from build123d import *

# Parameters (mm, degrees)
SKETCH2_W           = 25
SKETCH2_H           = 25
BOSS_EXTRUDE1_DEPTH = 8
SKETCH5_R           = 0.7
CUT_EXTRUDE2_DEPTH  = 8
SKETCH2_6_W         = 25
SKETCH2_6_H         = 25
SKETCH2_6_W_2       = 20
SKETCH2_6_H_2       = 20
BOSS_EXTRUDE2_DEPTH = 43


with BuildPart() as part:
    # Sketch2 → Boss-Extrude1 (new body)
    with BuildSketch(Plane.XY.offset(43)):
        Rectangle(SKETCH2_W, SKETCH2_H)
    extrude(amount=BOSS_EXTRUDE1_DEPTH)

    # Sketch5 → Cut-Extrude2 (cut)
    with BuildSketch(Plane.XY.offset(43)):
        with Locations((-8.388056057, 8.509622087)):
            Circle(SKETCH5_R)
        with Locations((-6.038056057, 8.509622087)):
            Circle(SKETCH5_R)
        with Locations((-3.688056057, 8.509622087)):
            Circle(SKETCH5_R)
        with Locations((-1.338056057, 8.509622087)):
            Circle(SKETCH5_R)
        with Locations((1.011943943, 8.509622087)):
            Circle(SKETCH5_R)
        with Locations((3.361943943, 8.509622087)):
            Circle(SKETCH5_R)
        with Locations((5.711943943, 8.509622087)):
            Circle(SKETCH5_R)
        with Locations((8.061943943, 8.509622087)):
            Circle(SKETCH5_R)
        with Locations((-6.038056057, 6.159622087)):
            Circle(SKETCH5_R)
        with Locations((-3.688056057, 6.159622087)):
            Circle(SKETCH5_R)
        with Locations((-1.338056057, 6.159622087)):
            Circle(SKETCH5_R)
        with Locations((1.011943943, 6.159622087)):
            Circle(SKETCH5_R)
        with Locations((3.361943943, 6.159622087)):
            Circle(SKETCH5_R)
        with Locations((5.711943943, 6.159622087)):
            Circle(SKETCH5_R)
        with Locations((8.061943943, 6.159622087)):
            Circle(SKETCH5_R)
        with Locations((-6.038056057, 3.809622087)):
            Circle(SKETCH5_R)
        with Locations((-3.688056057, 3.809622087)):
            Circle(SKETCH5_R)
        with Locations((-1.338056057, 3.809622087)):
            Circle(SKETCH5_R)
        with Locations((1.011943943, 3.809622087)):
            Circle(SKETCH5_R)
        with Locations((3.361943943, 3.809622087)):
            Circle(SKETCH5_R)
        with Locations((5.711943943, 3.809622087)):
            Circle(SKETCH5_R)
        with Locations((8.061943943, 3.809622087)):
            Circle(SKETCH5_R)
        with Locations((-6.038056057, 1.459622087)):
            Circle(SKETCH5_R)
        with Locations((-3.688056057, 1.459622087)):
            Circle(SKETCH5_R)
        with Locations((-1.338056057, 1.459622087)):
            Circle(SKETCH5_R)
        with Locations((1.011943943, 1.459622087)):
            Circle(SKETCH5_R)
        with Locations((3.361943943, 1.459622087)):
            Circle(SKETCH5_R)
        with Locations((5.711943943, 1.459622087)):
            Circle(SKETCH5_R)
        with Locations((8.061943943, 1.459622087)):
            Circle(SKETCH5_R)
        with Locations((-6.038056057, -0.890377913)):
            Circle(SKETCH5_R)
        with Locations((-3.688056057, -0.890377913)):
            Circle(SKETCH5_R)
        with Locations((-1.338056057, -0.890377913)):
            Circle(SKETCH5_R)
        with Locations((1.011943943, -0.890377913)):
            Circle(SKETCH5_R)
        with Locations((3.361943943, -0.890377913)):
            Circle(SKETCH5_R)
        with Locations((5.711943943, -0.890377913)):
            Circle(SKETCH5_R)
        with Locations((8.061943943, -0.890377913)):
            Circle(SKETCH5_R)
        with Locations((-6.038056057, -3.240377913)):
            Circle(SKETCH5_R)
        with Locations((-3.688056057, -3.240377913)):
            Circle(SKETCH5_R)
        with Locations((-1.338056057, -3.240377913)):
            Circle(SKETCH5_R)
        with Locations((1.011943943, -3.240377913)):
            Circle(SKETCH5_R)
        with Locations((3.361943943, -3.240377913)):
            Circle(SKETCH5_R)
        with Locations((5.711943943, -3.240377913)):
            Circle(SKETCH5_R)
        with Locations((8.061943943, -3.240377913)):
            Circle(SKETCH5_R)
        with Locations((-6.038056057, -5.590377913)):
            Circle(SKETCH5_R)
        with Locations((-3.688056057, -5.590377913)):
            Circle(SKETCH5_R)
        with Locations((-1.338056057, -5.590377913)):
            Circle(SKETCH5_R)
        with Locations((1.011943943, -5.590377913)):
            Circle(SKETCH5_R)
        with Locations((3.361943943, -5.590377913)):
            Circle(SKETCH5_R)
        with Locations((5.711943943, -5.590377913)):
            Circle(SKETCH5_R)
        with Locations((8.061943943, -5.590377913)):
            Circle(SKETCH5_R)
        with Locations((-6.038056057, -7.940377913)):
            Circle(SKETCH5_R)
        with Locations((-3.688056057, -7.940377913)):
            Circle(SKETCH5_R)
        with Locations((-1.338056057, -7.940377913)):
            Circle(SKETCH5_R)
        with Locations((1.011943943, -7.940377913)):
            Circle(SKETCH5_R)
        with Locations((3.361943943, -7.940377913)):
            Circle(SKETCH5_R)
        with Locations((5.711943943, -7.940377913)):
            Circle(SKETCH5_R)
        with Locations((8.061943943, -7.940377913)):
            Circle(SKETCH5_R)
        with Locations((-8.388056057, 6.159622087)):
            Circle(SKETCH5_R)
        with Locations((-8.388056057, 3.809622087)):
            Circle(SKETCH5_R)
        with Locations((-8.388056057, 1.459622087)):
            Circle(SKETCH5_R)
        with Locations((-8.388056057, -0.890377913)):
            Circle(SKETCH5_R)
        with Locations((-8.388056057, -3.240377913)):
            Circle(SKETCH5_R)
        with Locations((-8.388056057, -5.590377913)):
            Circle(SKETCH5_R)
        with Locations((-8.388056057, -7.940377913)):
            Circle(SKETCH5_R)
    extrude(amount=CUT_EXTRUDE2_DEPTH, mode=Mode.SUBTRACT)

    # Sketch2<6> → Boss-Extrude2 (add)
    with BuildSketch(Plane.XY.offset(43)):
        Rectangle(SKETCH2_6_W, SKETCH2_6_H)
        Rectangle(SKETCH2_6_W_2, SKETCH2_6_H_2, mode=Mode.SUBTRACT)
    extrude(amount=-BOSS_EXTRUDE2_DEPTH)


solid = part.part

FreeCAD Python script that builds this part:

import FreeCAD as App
import Part
import Sketcher
from FreeCAD import Vector


def add_polygon(sketch, points):
    """Adds a closed chain of lines whose ends are joined by coincident constraints."""
    first, n = sketch.GeometryCount, len(points)
    for a, b in zip(points, points[1:] + points[:1]):
        sketch.addGeometry(Part.LineSegment(App.Vector(*a, 0), App.Vector(*b, 0)), False)
    for i in range(n):
        sketch.addConstraint(Sketcher.Constraint("Coincident", first + i, 2, first + (i + 1) % n, 1))

doc = App.newDocument("Part")
body = doc.addObject("PartDesign::Body", "Body")

# Sketch on XY plane
sketch1 = body.newObject("Sketcher::SketchObject", "Sketch")
sketch1.AttachmentSupport = (doc.getObject("XY_Plane"), [""])
sketch1.MapMode = "FlatFace"
sketch1.AttachmentOffset = App.Placement(Vector(0, 0, 43), App.Rotation())
add_polygon(sketch1, [(-12, 12), (-12, -12), (12, -12), (12, 12)])  # lines 0-3
sketch1.addConstraint([
    Sketcher.Constraint("Vertical", 0),
    Sketcher.Constraint("Horizontal", 1),
    Sketcher.Constraint("Vertical", 2),
    Sketcher.Constraint("Horizontal", 3),
    Sketcher.Constraint("Symmetric", 0, 2, 2, 2, -1, 1),
    Sketcher.Constraint("Equal", 3, 0),
    Sketcher.Constraint("DistanceX", 1, 1, 1, 2, 25.0),
])
pad1 = body.newObject("PartDesign::Pad", "Pad")
pad1.Profile = sketch1
pad1.Length = 8

# Sketch on XY plane
sketch2 = body.newObject("Sketcher::SketchObject", "Sketch001")
sketch2.AttachmentSupport = (doc.getObject("XY_Plane"), [""])
sketch2.MapMode = "FlatFace"
sketch2.AttachmentOffset = App.Placement(Vector(0, 0, 43), App.Rotation())
sketch2.addGeometry([
    Part.Circle(Vector(-8.4, 8.5, 0), Vector(0, 0, 1), 0.7),  # 0
    Part.Circle(Vector(-6, 8.5, 0), Vector(0, 0, 1), 0.7),  # 1
    Part.Circle(Vector(-3.7, 8.5, 0), Vector(0, 0, 1), 0.7),  # 2
    Part.Circle(Vector(-1.3, 8.5, 0), Vector(0, 0, 1), 0.7),  # 3
    Part.Circle(Vector(1, 8.5, 0), Vector(0, 0, 1), 0.7),  # 4
    Part.Circle(Vector(3.4, 8.5, 0), Vector(0, 0, 1), 0.7),  # 5
    Part.Circle(Vector(5.7, 8.5, 0), Vector(0, 0, 1), 0.7),  # 6
    Part.Circle(Vector(8.1, 8.5, 0), Vector(0, 0, 1), 0.7),  # 7
    Part.Circle(Vector(-6, 6.2, 0), Vector(0, 0, 1), 0.7),  # 8
    Part.Circle(Vector(-3.7, 6.2, 0), Vector(0, 0, 1), 0.7),  # 9
    Part.Circle(Vector(-1.3, 6.2, 0), Vector(0, 0, 1), 0.7),  # 10
    Part.Circle(Vector(1, 6.2, 0), Vector(0, 0, 1), 0.7),  # 11
    Part.Circle(Vector(3.4, 6.2, 0), Vector(0, 0, 1), 0.7),  # 12
    Part.Circle(Vector(5.7, 6.2, 0), Vector(0, 0, 1), 0.7),  # 13
    Part.Circle(Vector(8.1, 6.2, 0), Vector(0, 0, 1), 0.7),  # 14
    Part.Circle(Vector(-6, 3.8, 0), Vector(0, 0, 1), 0.7),  # 15
    Part.Circle(Vector(-3.7, 3.8, 0), Vector(0, 0, 1), 0.7),  # 16
    Part.Circle(Vector(-1.3, 3.8, 0), Vector(0, 0, 1), 0.7),  # 17
    Part.Circle(Vector(1, 3.8, 0), Vector(0, 0, 1), 0.7),  # 18
    Part.Circle(Vector(3.4, 3.8, 0), Vector(0, 0, 1), 0.7),  # 19
    Part.Circle(Vector(5.7, 3.8, 0), Vector(0, 0, 1), 0.7),  # 20
    Part.Circle(Vector(8.1, 3.8, 0), Vector(0, 0, 1), 0.7),  # 21
    Part.Circle(Vector(-6, 1.5, 0), Vector(0, 0, 1), 0.7),  # 22
    Part.Circle(Vector(-3.7, 1.5, 0), Vector(0, 0, 1), 0.7),  # 23
    Part.Circle(Vector(-1.3, 1.5, 0), Vector(0, 0, 1), 0.7),  # 24
    Part.Circle(Vector(1, 1.5, 0), Vector(0, 0, 1), 0.7),  # 25
    Part.Circle(Vector(3.4, 1.5, 0), Vector(0, 0, 1), 0.7),  # 26
    Part.Circle(Vector(5.7, 1.5, 0), Vector(0, 0, 1), 0.7),  # 27
    Part.Circle(Vector(8.1, 1.5, 0), Vector(0, 0, 1), 0.7),  # 28
    Part.Circle(Vector(-6, -0.9, 0), Vector(0, 0, 1), 0.7),  # 29
    Part.Circle(Vector(-3.7, -0.9, 0), Vector(0, 0, 1), 0.7),  # 30
    Part.Circle(Vector(-1.3, -0.9, 0), Vector(0, 0, 1), 0.7),  # 31
    Part.Circle(Vector(1, -0.9, 0), Vector(0, 0, 1), 0.7),  # 32
    Part.Circle(Vector(3.4, -0.9, 0), Vector(0, 0, 1), 0.7),  # 33
    Part.Circle(Vector(5.7, -0.9, 0), Vector(0, 0, 1), 0.7),  # 34
    Part.Circle(Vector(8.1, -0.9, 0), Vector(0, 0, 1), 0.7),  # 35
    Part.Circle(Vector(-6, -3.2, 0), Vector(0, 0, 1), 0.7),  # 36
    Part.Circle(Vector(-3.7, -3.2, 0), Vector(0, 0, 1), 0.7),  # 37
    Part.Circle(Vector(-1.3, -3.2, 0), Vector(0, 0, 1), 0.7),  # 38
    Part.Circle(Vector(1, -3.2, 0), Vector(0, 0, 1), 0.7),  # 39
    Part.Circle(Vector(3.4, -3.2, 0), Vector(0, 0, 1), 0.7),  # 40
    Part.Circle(Vector(5.7, -3.2, 0), Vector(0, 0, 1), 0.7),  # 41
    Part.Circle(Vector(8.1, -3.2, 0), Vector(0, 0, 1), 0.7),  # 42
    Part.Circle(Vector(-6, -5.6, 0), Vector(0, 0, 1), 0.7),  # 43
    Part.Circle(Vector(-3.7, -5.6, 0), Vector(0, 0, 1), 0.7),  # 44
    Part.Circle(Vector(-1.3, -5.6, 0), Vector(0, 0, 1), 0.7),  # 45
    Part.Circle(Vector(1, -5.6, 0), Vector(0, 0, 1), 0.7),  # 46
    Part.Circle(Vector(3.4, -5.6, 0), Vector(0, 0, 1), 0.7),  # 47
    Part.Circle(Vector(5.7, -5.6, 0), Vector(0, 0, 1), 0.7),  # 48
    Part.Circle(Vector(8.1, -5.6, 0), Vector(0, 0, 1), 0.7),  # 49
    Part.Circle(Vector(-6, -7.9, 0), Vector(0, 0, 1), 0.7),  # 50
    Part.Circle(Vector(-3.7, -7.9, 0), Vector(0, 0, 1), 0.7),  # 51
    Part.Circle(Vector(-1.3, -7.9, 0), Vector(0, 0, 1), 0.7),  # 52
    Part.Circle(Vector(1, -7.9, 0), Vector(0, 0, 1), 0.7),  # 53
    Part.Circle(Vector(3.4, -7.9, 0), Vector(0, 0, 1), 0.7),  # 54
    Part.Circle(Vector(5.7, -7.9, 0), Vector(0, 0, 1), 0.7),  # 55
    Part.Circle(Vector(8.1, -7.9, 0), Vector(0, 0, 1), 0.7),  # 56
    Part.Circle(Vector(-8.4, 6.2, 0), Vector(0, 0, 1), 0.7),  # 57
    Part.Circle(Vector(-8.4, 3.8, 0), Vector(0, 0, 1), 0.7),  # 58
    Part.Circle(Vector(-8.4, 1.5, 0), Vector(0, 0, 1), 0.7),  # 59
    Part.Circle(Vector(-8.4, -0.9, 0), Vector(0, 0, 1), 0.7),  # 60
    Part.Circle(Vector(-8.4, -3.2, 0), Vector(0, 0, 1), 0.7),  # 61
    Part.Circle(Vector(-8.4, -5.6, 0), Vector(0, 0, 1), 0.7),  # 62
    Part.Circle(Vector(-8.4, -7.9, 0), Vector(0, 0, 1), 0.7),  # 63
], False)
sketch2.addConstraint([
    Sketcher.Constraint("Equal", 0, 1),
    Sketcher.Constraint("Equal", 1, 2),
    Sketcher.Constraint("Equal", 2, 3),
    Sketcher.Constraint("Equal", 3, 4),
    Sketcher.Constraint("Equal", 4, 5),
    Sketcher.Constraint("Equal", 5, 6),
    Sketcher.Constraint("Equal", 6, 7),
    Sketcher.Constraint("Equal", 7, 8),
    Sketcher.Constraint("Equal", 8, 9),
    Sketcher.Constraint("Equal", 9, 10),
    Sketcher.Constraint("Equal", 10, 11),
    Sketcher.Constraint("Equal", 11, 12),
    Sketcher.Constraint("Equal", 12, 13),
    Sketcher.Constraint("Equal", 13, 14),
    Sketcher.Constraint("Equal", 14, 15),
    Sketcher.Constraint("Equal", 15, 16),
    Sketcher.Constraint("Equal", 16, 17),
    Sketcher.Constraint("Equal", 17, 18),
    Sketcher.Constraint("Equal", 18, 19),
    Sketcher.Constraint("Equal", 19, 20),
    Sketcher.Constraint("Equal", 20, 21),
    Sketcher.Constraint("Equal", 21, 22),
    Sketcher.Constraint("Equal", 22, 23),
    Sketcher.Constraint("Equal", 23, 24),
    Sketcher.Constraint("Equal", 24, 25),
    Sketcher.Constraint("Equal", 25, 26),
    Sketcher.Constraint("Equal", 26, 27),
    Sketcher.Constraint("Equal", 27, 28),
    Sketcher.Constraint("Equal", 28, 29),
    Sketcher.Constraint("Equal", 29, 30),
    Sketcher.Constraint("Equal", 30, 31),
    Sketcher.Constraint("Equal", 31, 32),
    Sketcher.Constraint("Equal", 32, 33),
    Sketcher.Constraint("Equal", 33, 34),
    Sketcher.Constraint("Equal", 34, 35),
    Sketcher.Constraint("Equal", 35, 36),
    Sketcher.Constraint("Equal", 36, 37),
    Sketcher.Constraint("Equal", 37, 38),
    Sketcher.Constraint("Equal", 38, 39),
    Sketcher.Constraint("Equal", 39, 40),
    Sketcher.Constraint("Equal", 40, 41),
    Sketcher.Constraint("Equal", 41, 42),
    Sketcher.Constraint("Equal", 42, 43),
    Sketcher.Constraint("Equal", 43, 44),
    Sketcher.Constraint("Equal", 44, 45),
    Sketcher.Constraint("Equal", 45, 46),
    Sketcher.Constraint("Equal", 46, 47),
    Sketcher.Constraint("Equal", 47, 48),
    Sketcher.Constraint("Equal", 48, 49),
    Sketcher.Constraint("Equal", 49, 50),
    Sketcher.Constraint("Equal", 50, 51),
    Sketcher.Constraint("Equal", 51, 52),
    Sketcher.Constraint("Equal", 52, 53),
    Sketcher.Constraint("Equal", 53, 54),
    Sketcher.Constraint("Equal", 54, 55),
    Sketcher.Constraint("Equal", 55, 56),
    Sketcher.Constraint("Equal", 56, 57),
    Sketcher.Constraint("Equal", 57, 58),
    Sketcher.Constraint("Equal", 58, 59),
    Sketcher.Constraint("Equal", 59, 60),
    Sketcher.Constraint("Equal", 60, 61),
    Sketcher.Constraint("Equal", 61, 62),
    Sketcher.Constraint("Equal", 62, 63),
    Sketcher.Constraint("Horizontal", 0, 3, 1, 3),
    Sketcher.Constraint("Horizontal", 1, 3, 2, 3),
    Sketcher.Constraint("Horizontal", 2, 3, 3, 3),
    Sketcher.Constraint("Horizontal", 3, 3, 4, 3),
    Sketcher.Constraint("Horizontal", 4, 3, 5, 3),
    Sketcher.Constraint("Horizontal", 5, 3, 6, 3),
    Sketcher.Constraint("Horizontal", 6, 3, 7, 3),
    Sketcher.Constraint("Horizontal", 8, 3, 9, 3),
    Sketcher.Constraint("Horizontal", 9, 3, 10, 3),
    Sketcher.Constraint("Horizontal", 10, 3, 11, 3),
    Sketcher.Constraint("Horizontal", 11, 3, 12, 3),
    Sketcher.Constraint("Horizontal", 12, 3, 13, 3),
    Sketcher.Constraint("Horizontal", 13, 3, 14, 3),
    Sketcher.Constraint("Horizontal", 15, 3, 16, 3),
    Sketcher.Constraint("Horizontal", 16, 3, 17, 3),
    Sketcher.Constraint("Horizontal", 17, 3, 18, 3),
    Sketcher.Constraint("Horizontal", 18, 3, 19, 3),
    Sketcher.Constraint("Horizontal", 19, 3, 20, 3),
    Sketcher.Constraint("Horizontal", 20, 3, 21, 3),
    Sketcher.Constraint("Horizontal", 22, 3, 23, 3),
    Sketcher.Constraint("Horizontal", 23, 3, 24, 3),
    Sketcher.Constraint("Horizontal", 24, 3, 25, 3),
    Sketcher.Constraint("Horizontal", 25, 3, 26, 3),
    Sketcher.Constraint("Horizontal", 26, 3, 27, 3),
    Sketcher.Constraint("Horizontal", 27, 3, 28, 3),
    Sketcher.Constraint("Horizontal", 29, 3, 30, 3),
    Sketcher.Constraint("Horizontal", 30, 3, 31, 3),
    Sketcher.Constraint("Horizontal", 31, 3, 32, 3),
    Sketcher.Constraint("Horizontal", 32, 3, 33, 3),
    Sketcher.Constraint("Horizontal", 33, 3, 34, 3),
    Sketcher.Constraint("Horizontal", 34, 3, 35, 3),
    Sketcher.Constraint("Horizontal", 36, 3, 37, 3),
    Sketcher.Constraint("Horizontal", 37, 3, 38, 3),
    Sketcher.Constraint("Horizontal", 38, 3, 39, 3),
    Sketcher.Constraint("Horizontal", 39, 3, 40, 3),
    Sketcher.Constraint("Horizontal", 40, 3, 41, 3),
    Sketcher.Constraint("Horizontal", 41, 3, 42, 3),
    Sketcher.Constraint("Horizontal", 43, 3, 44, 3),
    Sketcher.Constraint("Horizontal", 44, 3, 45, 3),
    Sketcher.Constraint("Horizontal", 45, 3, 46, 3),
    Sketcher.Constraint("Horizontal", 46, 3, 47, 3),
    Sketcher.Constraint("Horizontal", 47, 3, 48, 3),
    Sketcher.Constraint("Horizontal", 48, 3, 49, 3),
    Sketcher.Constraint("Horizontal", 50, 3, 51, 3),
    Sketcher.Constraint("Horizontal", 51, 3, 52, 3),
    Sketcher.Constraint("Horizontal", 52, 3, 53, 3),
    Sketcher.Constraint("Horizontal", 53, 3, 54, 3),
    Sketcher.Constraint("Horizontal", 54, 3, 55, 3),
    Sketcher.Constraint("Horizontal", 55, 3, 56, 3),
    Sketcher.Constraint("Horizontal", 14, 3, 57, 3),
    Sketcher.Constraint("Horizontal", 21, 3, 58, 3),
    Sketcher.Constraint("Horizontal", 28, 3, 59, 3),
    Sketcher.Constraint("Horizontal", 35, 3, 60, 3),
    Sketcher.Constraint("Horizontal", 42, 3, 61, 3),
    Sketcher.Constraint("Horizontal", 49, 3, 62, 3),
    Sketcher.Constraint("Horizontal", 56, 3, 63, 3),
    Sketcher.Constraint("Vertical", 1, 3, 8, 3),
    Sketcher.Constraint("Vertical", 2, 3, 9, 3),
    Sketcher.Constraint("Vertical", 3, 3, 10, 3),
    Sketcher.Constraint("Vertical", 4, 3, 11, 3),
    Sketcher.Constraint("Vertical", 5, 3, 12, 3),
    Sketcher.Constraint("Vertical", 6, 3, 13, 3),
    Sketcher.Constraint("Vertical", 7, 3, 14, 3),
    Sketcher.Constraint("Vertical", 8, 3, 15, 3),
    Sketcher.Constraint("Vertical", 9, 3, 16, 3),
    Sketcher.Constraint("Vertical", 10, 3, 17, 3),
    Sketcher.Constraint("Vertical", 11, 3, 18, 3),
    Sketcher.Constraint("Vertical", 12, 3, 19, 3),
    Sketcher.Constraint("Vertical", 13, 3, 20, 3),
    Sketcher.Constraint("Vertical", 14, 3, 21, 3),
    Sketcher.Constraint("Vertical", 15, 3, 22, 3),
    Sketcher.Constraint("Vertical", 16, 3, 23, 3),
    Sketcher.Constraint("Vertical", 17, 3, 24, 3),
    Sketcher.Constraint("Vertical", 18, 3, 25, 3),
    Sketcher.Constraint("Vertical", 19, 3, 26, 3),
    Sketcher.Constraint("Vertical", 20, 3, 27, 3),
    Sketcher.Constraint("Vertical", 21, 3, 28, 3),
    Sketcher.Constraint("Vertical", 22, 3, 29, 3),
    Sketcher.Constraint("Vertical", 23, 3, 30, 3),
    Sketcher.Constraint("Vertical", 24, 3, 31, 3),
    Sketcher.Constraint("Vertical", 25, 3, 32, 3),
    Sketcher.Constraint("Vertical", 26, 3, 33, 3),
    Sketcher.Constraint("Vertical", 27, 3, 34, 3),
    Sketcher.Constraint("Vertical", 28, 3, 35, 3),
    Sketcher.Constraint("Vertical", 29, 3, 36, 3),
    Sketcher.Constraint("Vertical", 30, 3, 37, 3),
    Sketcher.Constraint("Vertical", 31, 3, 38, 3),
    Sketcher.Constraint("Vertical", 32, 3, 39, 3),
    Sketcher.Constraint("Vertical", 33, 3, 40, 3),
    Sketcher.Constraint("Vertical", 34, 3, 41, 3),
    Sketcher.Constraint("Vertical", 35, 3, 42, 3),
    Sketcher.Constraint("Vertical", 36, 3, 43, 3),
    Sketcher.Constraint("Vertical", 37, 3, 44, 3),
    Sketcher.Constraint("Vertical", 38, 3, 45, 3),
    Sketcher.Constraint("Vertical", 39, 3, 46, 3),
    Sketcher.Constraint("Vertical", 40, 3, 47, 3),
    Sketcher.Constraint("Vertical", 41, 3, 48, 3),
    Sketcher.Constraint("Vertical", 42, 3, 49, 3),
    Sketcher.Constraint("Vertical", 43, 3, 50, 3),
    Sketcher.Constraint("Vertical", 44, 3, 51, 3),
    Sketcher.Constraint("Vertical", 45, 3, 52, 3),
    Sketcher.Constraint("Vertical", 46, 3, 53, 3),
    Sketcher.Constraint("Vertical", 47, 3, 54, 3),
    Sketcher.Constraint("Vertical", 48, 3, 55, 3),
    Sketcher.Constraint("Vertical", 49, 3, 56, 3),
    Sketcher.Constraint("Vertical", 0, 3, 57, 3),
    Sketcher.Constraint("Vertical", 57, 3, 58, 3),
    Sketcher.Constraint("Vertical", 58, 3, 59, 3),
    Sketcher.Constraint("Vertical", 59, 3, 60, 3),
    Sketcher.Constraint("Vertical", 60, 3, 61, 3),
    Sketcher.Constraint("Vertical", 61, 3, 62, 3),
    Sketcher.Constraint("Vertical", 62, 3, 63, 3),
    Sketcher.Constraint("Diameter", 0, 1.4),
    Sketcher.Constraint("DistanceX", 0, 3, -1, 1, 8.388056),
    Sketcher.Constraint("DistanceY", -1, 1, 0, 3, 8.509622),
    Sketcher.Constraint("DistanceX", 1, 3, -1, 1, 6.038056),
    Sketcher.Constraint("DistanceX", 2, 3, -1, 1, 3.688056),
    Sketcher.Constraint("DistanceX", 3, 3, -1, 1, 1.338056),
    Sketcher.Constraint("DistanceX", -1, 1, 4, 3, 1.011944),
    Sketcher.Constraint("DistanceX", -1, 1, 5, 3, 3.361944),
    Sketcher.Constraint("DistanceX", -1, 1, 6, 3, 5.711944),
    Sketcher.Constraint("DistanceX", -1, 1, 7, 3, 8.061944),
    Sketcher.Constraint("DistanceY", -1, 1, 8, 3, 6.159622),
    Sketcher.Constraint("DistanceY", -1, 1, 15, 3, 3.809622),
    Sketcher.Constraint("DistanceY", -1, 1, 22, 3, 1.459622),
    Sketcher.Constraint("DistanceY", 29, 3, -1, 1, 0.890378),
    Sketcher.Constraint("DistanceY", 36, 3, -1, 1, 3.240378),
    Sketcher.Constraint("DistanceY", 43, 3, -1, 1, 5.590378),
    Sketcher.Constraint("DistanceY", 50, 3, -1, 1, 7.940378),
])
pocket1 = body.newObject("PartDesign::Pocket", "Pocket")
pocket1.Profile = sketch2
pocket1.Length = 8
pocket1.Reversed = True

# Sketch on XY plane
sketch3 = body.newObject("Sketcher::SketchObject", "Sketch002")
sketch3.AttachmentSupport = (doc.getObject("XY_Plane"), [""])
sketch3.MapMode = "FlatFace"
sketch3.AttachmentOffset = App.Placement(Vector(0, 0, 43), App.Rotation())
add_polygon(sketch3, [(-12, 12), (-12, -12), (12, -12), (12, 12)])  # lines 0-3
add_polygon(sketch3, [(10, -10), (-10, -10), (-10, 10), (10, 10)])  # lines 4-7
sketch3.addConstraint([
    Sketcher.Constraint("Vertical", 0),
    Sketcher.Constraint("Horizontal", 1),
    Sketcher.Constraint("Vertical", 2),
    Sketcher.Constraint("Horizontal", 3),
    Sketcher.Constraint("Horizontal", 4),
    Sketcher.Constraint("Vertical", 5),
    Sketcher.Constraint("Horizontal", 6),
    Sketcher.Constraint("Vertical", 7),
    Sketcher.Constraint("Symmetric", 0, 2, 2, 2, -1, 1),
    Sketcher.Constraint("Symmetric", 4, 2, 6, 2, -1, 1),
    Sketcher.Constraint("Equal", 3, 0),
    Sketcher.Constraint("Equal", 6, 5),
    Sketcher.Constraint("DistanceX", 1, 1, 1, 2, 25.0),
    Sketcher.Constraint("DistanceX", 4, 2, 4, 1, 20.0),
])
pad2 = body.newObject("PartDesign::Pad", "Pad001")
pad2.Profile = sketch3
pad2.Length = 43
pad2.Reversed = True

doc.recompute()
